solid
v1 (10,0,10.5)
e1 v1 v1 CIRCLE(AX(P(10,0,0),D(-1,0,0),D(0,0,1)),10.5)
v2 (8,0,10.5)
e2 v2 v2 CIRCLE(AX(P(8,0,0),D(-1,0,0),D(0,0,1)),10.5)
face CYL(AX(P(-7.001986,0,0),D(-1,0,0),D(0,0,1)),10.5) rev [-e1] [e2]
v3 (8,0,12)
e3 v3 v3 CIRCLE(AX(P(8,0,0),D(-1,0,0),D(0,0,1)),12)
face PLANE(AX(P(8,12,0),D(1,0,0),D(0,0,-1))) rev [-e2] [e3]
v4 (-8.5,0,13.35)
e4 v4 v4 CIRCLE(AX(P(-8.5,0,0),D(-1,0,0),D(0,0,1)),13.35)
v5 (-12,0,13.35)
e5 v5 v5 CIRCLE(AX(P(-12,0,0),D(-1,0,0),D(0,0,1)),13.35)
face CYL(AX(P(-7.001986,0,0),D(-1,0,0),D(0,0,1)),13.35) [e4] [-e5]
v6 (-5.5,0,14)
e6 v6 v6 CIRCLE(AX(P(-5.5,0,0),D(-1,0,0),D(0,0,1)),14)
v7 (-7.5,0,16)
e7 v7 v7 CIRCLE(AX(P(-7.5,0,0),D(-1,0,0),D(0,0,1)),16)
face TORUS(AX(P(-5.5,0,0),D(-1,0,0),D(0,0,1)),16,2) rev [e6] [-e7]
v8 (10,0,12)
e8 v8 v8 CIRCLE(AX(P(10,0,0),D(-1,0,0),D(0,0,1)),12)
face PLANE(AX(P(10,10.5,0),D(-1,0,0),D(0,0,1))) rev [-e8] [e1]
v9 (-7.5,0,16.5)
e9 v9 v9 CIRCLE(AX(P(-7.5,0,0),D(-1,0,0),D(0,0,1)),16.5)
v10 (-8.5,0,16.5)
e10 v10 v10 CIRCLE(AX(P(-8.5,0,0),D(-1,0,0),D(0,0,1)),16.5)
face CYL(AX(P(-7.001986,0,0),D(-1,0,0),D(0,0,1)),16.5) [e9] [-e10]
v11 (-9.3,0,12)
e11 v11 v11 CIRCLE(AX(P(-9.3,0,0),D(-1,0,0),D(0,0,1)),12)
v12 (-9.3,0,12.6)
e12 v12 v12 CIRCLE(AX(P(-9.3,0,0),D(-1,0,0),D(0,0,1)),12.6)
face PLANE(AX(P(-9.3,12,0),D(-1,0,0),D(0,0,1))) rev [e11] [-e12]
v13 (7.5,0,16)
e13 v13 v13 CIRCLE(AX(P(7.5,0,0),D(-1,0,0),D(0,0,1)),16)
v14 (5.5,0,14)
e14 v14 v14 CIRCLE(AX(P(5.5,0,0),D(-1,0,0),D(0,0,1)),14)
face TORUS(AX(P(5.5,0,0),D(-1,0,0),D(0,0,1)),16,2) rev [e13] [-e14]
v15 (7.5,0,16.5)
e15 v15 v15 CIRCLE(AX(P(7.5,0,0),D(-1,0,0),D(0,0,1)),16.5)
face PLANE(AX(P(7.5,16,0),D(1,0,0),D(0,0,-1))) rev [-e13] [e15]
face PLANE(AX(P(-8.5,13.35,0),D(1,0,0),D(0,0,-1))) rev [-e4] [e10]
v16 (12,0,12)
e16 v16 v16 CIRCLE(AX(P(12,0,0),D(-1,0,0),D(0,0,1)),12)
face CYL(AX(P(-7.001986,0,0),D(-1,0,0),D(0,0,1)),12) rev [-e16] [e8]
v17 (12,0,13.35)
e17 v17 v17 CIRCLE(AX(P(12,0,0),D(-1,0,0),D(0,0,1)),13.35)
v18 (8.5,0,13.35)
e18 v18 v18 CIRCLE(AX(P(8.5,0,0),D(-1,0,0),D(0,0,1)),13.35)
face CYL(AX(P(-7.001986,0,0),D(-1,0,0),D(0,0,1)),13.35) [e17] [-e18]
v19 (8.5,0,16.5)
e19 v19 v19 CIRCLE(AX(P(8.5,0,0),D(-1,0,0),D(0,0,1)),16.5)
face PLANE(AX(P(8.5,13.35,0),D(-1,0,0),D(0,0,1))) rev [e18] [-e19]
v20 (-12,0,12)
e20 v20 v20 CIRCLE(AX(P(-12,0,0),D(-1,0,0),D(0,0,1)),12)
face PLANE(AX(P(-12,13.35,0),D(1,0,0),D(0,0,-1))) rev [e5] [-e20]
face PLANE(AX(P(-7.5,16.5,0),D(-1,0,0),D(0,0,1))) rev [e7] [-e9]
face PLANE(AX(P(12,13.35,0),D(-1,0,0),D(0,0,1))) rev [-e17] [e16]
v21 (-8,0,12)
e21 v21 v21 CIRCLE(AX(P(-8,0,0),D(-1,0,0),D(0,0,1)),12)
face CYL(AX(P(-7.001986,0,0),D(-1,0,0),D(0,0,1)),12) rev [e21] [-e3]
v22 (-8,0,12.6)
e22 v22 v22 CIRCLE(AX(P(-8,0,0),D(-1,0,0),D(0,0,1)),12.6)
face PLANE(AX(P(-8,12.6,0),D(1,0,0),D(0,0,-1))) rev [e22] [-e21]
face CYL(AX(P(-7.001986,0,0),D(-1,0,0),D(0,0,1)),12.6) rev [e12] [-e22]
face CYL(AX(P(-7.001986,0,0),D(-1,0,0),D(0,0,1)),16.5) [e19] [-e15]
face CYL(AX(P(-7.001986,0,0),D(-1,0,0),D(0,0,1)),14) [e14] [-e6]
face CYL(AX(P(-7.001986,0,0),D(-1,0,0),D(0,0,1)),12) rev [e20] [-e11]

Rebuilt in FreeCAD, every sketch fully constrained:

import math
import FreeCAD as App
import Part
import Sketcher
from FreeCAD import Vector

doc = App.newDocument("Part")
body = doc.addObject("PartDesign::Body", "Body")

sketch1 = doc.addObject("Sketcher::SketchObject", "Sketch")
body.addObject(sketch1)
sketch1.AttachmentSupport = (doc.XY_Plane, [""])
sketch1.MapMode = "FlatFace"
sketch1.addGeometry(Part.LineSegment(Vector(-12, 12, 0), Vector(-9.3, 12, 0)), False)
sketch1.addGeometry(Part.LineSegment(Vector(-9.3, 12, 0), Vector(-9.3, 12.6, 0)), False)
sketch1.addGeometry(Part.LineSegment(Vector(-9.3, 12.6, 0), Vector(-8, 12.6, 0)), False)
sketch1.addGeometry(Part.LineSegment(Vector(-8, 12.6, 0), Vector(-8, 12, 0)), False)
sketch1.addGeometry(Part.LineSegment(Vector(-8, 12, 0), Vector(8, 12, 0)), False)
sketch1.addGeometry(Part.LineSegment(Vector(8, 12, 0), Vector(8, 10.5, 0)), False)
sketch1.addGeometry(Part.LineSegment(Vector(8, 10.5, 0), Vector(10, 10.5, 0)), False)
sketch1.addGeometry(Part.LineSegment(Vector(10, 10.5, 0), Vector(10, 12, 0)), False)
sketch1.addGeometry(Part.LineSegment(Vector(10, 12, 0), Vector(12, 12, 0)), False)
sketch1.addGeometry(Part.LineSegment(Vector(12, 12, 0), Vector(12, 13.3, 0)), False)
sketch1.addGeometry(Part.LineSegment(Vector(12, 13.3, 0), Vector(8.5, 13.3, 0)), False)
sketch1.addGeometry(Part.LineSegment(Vector(8.5, 13.3, 0), Vector(8.5, 16.5, 0)), False)
sketch1.addGeometry(Part.LineSegment(Vector(8.5, 16.5, 0), Vector(7.5, 16.5, 0)), False)
sketch1.addGeometry(Part.LineSegment(Vector(7.5, 16.5, 0), Vector(7.5, 16, 0)), False)
sketch1.addGeometry(Part.ArcOfCircle(Part.Circle(Vector(5.5, 16, 0), Vector(0, 0, 1), 2), math.radians(-90), math.radians(0)), False)
sketch1.addGeometry(Part.LineSegment(Vector(5.5, 14, 0), Vector(-5.5, 14, 0)), False)
sketch1.addGeometry(Part.ArcOfCircle(Part.Circle(Vector(-5.5, 16, 0), Vector(0, 0, 1), 2), math.radians(-180), math.radians(-90)), False)
sketch1.addGeometry(Part.LineSegment(Vector(-7.5, 16, 0), Vector(-7.5, 16.5, 0)), False)
sketch1.addGeometry(Part.LineSegment(Vector(-7.5, 16.5, 0), Vector(-8.5, 16.5, 0)), False)
sketch1.addGeometry(Part.LineSegment(Vector(-8.5, 16.5, 0), Vector(-8.5, 13.3, 0)), False)
sketch1.addGeometry(Part.LineSegment(Vector(-8.5, 13.3, 0), Vector(-12, 13.3, 0)), False)
sketch1.addGeometry(Part.LineSegment(Vector(-12, 13.3, 0), Vector(-12, 12, 0)), False)
sketch1.addConstraint(Sketcher.Constraint("Coincident", 0, 2, 1, 1))
sketch1.addConstraint(Sketcher.Constraint("Coincident", 1, 2, 2, 1))
sketch1.addConstraint(Sketcher.Constraint("Coincident", 2, 2, 3, 1))
sketch1.addConstraint(Sketcher.Constraint("Coincident", 3, 2, 4, 1))
sketch1.addConstraint(Sketcher.Constraint("Coincident", 4, 2, 5, 1))
sketch1.addConstraint(Sketcher.Constraint("Coincident", 5, 2, 6, 1))
sketch1.addConstraint(Sketcher.Constraint("Coincident", 6, 2, 7, 1))
sketch1.addConstraint(Sketcher.Constraint("Coincident", 7, 2, 8, 1))
sketch1.addConstraint(Sketcher.Constraint("Coincident", 8, 2, 9, 1))
sketch1.addConstraint(Sketcher.Constraint("Coincident", 9, 2, 10, 1))
sketch1.addConstraint(Sketcher.Constraint("Coincident", 10, 2, 11, 1))
sketch1.addConstraint(Sketcher.Constraint("Coincident", 11, 2, 12, 1))
sketch1.addConstraint(Sketcher.Constraint("Coincident", 12, 2, 13, 1))
sketch1.addConstraint(Sketcher.Constraint("Tangent", 13, 2, 14, 2))
sketch1.addConstraint(Sketcher.Constraint("Tangent", 14, 1, 15, 1))
sketch1.addConstraint(Sketcher.Constraint("Tangent", 15, 2, 16, 2))
sketch1.addConstraint(Sketcher.Constraint("Tangent", 16, 1, 17, 1))
sketch1.addConstraint(Sketcher.Constraint("Coincident", 17, 2, 18, 1))
sketch1.addConstraint(Sketcher.Constraint("Coincident", 18, 2, 19, 1))
sketch1.addConstraint(Sketcher.Constraint("Coincident", 19, 2, 20, 1))
sketch1.addConstraint(Sketcher.Constraint("Coincident", 20, 2, 21, 1))
sketch1.addConstraint(Sketcher.Constraint("Coincident", 21, 2, 0, 1))
sketch1.addConstraint(Sketcher.Constraint("Horizontal", 0))
sketch1.addConstraint(Sketcher.Constraint("Vertical", 1))
sketch1.addConstraint(Sketcher.Constraint("Horizontal", 2))
sketch1.addConstraint(Sketcher.Constraint("Vertical", 3))
sketch1.addConstraint(Sketcher.Constraint("Horizontal", 4))
sketch1.addConstraint(Sketcher.Constraint("Vertical", 5))
sketch1.addConstraint(Sketcher.Constraint("Horizontal", 6))
sketch1.addConstraint(Sketcher.Constraint("Vertical", 7))
sketch1.addConstraint(Sketcher.Constraint("Horizontal", 8))
sketch1.addConstraint(Sketcher.Constraint("Vertical", 9))
sketch1.addConstraint(Sketcher.Constraint("Horizontal", 10))
sketch1.addConstraint(Sketcher.Constraint("Vertical", 11))
sketch1.addConstraint(Sketcher.Constraint("Horizontal", 12))
sketch1.addConstraint(Sketcher.Constraint("Vertical", 13))
sketch1.addConstraint(Sketcher.Constraint("Horizontal", 15))
sketch1.addConstraint(Sketcher.Constraint("Vertical", 17))
sketch1.addConstraint(Sketcher.Constraint("Horizontal", 18))
sketch1.addConstraint(Sketcher.Constraint("Vertical", 19))
sketch1.addConstraint(Sketcher.Constraint("Horizontal", 20))
sketch1.addConstraint(Sketcher.Constraint("Vertical", 21))
sketch1.addConstraint(Sketcher.Constraint("Equal", 14, 16))
sketch1.addConstraint(Sketcher.Constraint("Symmetric", 12, 2, 17, 2, -2))
sketch1.addConstraint(Sketcher.Constraint("Symmetric", 10, 2, 19, 2, -2))
sketch1.addConstraint(Sketcher.Constraint("Symmetric", 8, 2, 21, 2, -2))
sketch1.addConstraint(Sketcher.Constraint("Horizontal", 0, 2, 3, 2))
sketch1.addConstraint(Sketcher.Constraint("Equal", 6, 8))
sketch1.addConstraint(Sketcher.Constraint("Radius", 14, 2.0))
sketch1.addConstraint(Sketcher.Constraint("DistanceX", 4, 1, 4, 2, 16.0))
sketch1.addConstraint(Sketcher.Constraint("DistanceX", 6, 1, 6, 2, 2.0))
sketch1.addConstraint(Sketcher.Constraint("DistanceX", 12, 2, 12, 1, 1.0))
sketch1.addConstraint(Sketcher.Constraint("DistanceX", 15, 2, 15, 1, 11.0))
sketch1.addConstraint(Sketcher.Constraint("DistanceX", 0, 1, 0, 2, 2.7))
sketch1.addConstraint(Sketcher.Constraint("DistanceX", 2, 1, 2, 2, 1.3))
sketch1.addConstraint(Sketcher.Constraint("DistanceY", 1, 1, 1, 2, 0.6))
sketch1.addConstraint(Sketcher.Constraint("DistanceY", 5, 2, 5, 1, 1.5))
sketch1.addConstraint(Sketcher.Constraint("DistanceY", 13, 2, 13, 1, 0.5))
sketch1.addConstraint(Sketcher.Constraint("DistanceY", -1, 1, 14, 3, 16.0))
sketch1.addConstraint(Sketcher.Constraint("DistanceY", -1, 1, 0, 2, 12.0))
sketch1.addConstraint(Sketcher.Constraint("DistanceY", 9, 1, 9, 2, 1.35))
revolution = doc.addObject("PartDesign::Revolution", "Revolution")
body.addObject(revolution)
revolution.Profile = sketch1
revolution.ReferenceAxis = (sketch1, ["H_Axis"])
revolution.Angle = 360

doc.recompute()
